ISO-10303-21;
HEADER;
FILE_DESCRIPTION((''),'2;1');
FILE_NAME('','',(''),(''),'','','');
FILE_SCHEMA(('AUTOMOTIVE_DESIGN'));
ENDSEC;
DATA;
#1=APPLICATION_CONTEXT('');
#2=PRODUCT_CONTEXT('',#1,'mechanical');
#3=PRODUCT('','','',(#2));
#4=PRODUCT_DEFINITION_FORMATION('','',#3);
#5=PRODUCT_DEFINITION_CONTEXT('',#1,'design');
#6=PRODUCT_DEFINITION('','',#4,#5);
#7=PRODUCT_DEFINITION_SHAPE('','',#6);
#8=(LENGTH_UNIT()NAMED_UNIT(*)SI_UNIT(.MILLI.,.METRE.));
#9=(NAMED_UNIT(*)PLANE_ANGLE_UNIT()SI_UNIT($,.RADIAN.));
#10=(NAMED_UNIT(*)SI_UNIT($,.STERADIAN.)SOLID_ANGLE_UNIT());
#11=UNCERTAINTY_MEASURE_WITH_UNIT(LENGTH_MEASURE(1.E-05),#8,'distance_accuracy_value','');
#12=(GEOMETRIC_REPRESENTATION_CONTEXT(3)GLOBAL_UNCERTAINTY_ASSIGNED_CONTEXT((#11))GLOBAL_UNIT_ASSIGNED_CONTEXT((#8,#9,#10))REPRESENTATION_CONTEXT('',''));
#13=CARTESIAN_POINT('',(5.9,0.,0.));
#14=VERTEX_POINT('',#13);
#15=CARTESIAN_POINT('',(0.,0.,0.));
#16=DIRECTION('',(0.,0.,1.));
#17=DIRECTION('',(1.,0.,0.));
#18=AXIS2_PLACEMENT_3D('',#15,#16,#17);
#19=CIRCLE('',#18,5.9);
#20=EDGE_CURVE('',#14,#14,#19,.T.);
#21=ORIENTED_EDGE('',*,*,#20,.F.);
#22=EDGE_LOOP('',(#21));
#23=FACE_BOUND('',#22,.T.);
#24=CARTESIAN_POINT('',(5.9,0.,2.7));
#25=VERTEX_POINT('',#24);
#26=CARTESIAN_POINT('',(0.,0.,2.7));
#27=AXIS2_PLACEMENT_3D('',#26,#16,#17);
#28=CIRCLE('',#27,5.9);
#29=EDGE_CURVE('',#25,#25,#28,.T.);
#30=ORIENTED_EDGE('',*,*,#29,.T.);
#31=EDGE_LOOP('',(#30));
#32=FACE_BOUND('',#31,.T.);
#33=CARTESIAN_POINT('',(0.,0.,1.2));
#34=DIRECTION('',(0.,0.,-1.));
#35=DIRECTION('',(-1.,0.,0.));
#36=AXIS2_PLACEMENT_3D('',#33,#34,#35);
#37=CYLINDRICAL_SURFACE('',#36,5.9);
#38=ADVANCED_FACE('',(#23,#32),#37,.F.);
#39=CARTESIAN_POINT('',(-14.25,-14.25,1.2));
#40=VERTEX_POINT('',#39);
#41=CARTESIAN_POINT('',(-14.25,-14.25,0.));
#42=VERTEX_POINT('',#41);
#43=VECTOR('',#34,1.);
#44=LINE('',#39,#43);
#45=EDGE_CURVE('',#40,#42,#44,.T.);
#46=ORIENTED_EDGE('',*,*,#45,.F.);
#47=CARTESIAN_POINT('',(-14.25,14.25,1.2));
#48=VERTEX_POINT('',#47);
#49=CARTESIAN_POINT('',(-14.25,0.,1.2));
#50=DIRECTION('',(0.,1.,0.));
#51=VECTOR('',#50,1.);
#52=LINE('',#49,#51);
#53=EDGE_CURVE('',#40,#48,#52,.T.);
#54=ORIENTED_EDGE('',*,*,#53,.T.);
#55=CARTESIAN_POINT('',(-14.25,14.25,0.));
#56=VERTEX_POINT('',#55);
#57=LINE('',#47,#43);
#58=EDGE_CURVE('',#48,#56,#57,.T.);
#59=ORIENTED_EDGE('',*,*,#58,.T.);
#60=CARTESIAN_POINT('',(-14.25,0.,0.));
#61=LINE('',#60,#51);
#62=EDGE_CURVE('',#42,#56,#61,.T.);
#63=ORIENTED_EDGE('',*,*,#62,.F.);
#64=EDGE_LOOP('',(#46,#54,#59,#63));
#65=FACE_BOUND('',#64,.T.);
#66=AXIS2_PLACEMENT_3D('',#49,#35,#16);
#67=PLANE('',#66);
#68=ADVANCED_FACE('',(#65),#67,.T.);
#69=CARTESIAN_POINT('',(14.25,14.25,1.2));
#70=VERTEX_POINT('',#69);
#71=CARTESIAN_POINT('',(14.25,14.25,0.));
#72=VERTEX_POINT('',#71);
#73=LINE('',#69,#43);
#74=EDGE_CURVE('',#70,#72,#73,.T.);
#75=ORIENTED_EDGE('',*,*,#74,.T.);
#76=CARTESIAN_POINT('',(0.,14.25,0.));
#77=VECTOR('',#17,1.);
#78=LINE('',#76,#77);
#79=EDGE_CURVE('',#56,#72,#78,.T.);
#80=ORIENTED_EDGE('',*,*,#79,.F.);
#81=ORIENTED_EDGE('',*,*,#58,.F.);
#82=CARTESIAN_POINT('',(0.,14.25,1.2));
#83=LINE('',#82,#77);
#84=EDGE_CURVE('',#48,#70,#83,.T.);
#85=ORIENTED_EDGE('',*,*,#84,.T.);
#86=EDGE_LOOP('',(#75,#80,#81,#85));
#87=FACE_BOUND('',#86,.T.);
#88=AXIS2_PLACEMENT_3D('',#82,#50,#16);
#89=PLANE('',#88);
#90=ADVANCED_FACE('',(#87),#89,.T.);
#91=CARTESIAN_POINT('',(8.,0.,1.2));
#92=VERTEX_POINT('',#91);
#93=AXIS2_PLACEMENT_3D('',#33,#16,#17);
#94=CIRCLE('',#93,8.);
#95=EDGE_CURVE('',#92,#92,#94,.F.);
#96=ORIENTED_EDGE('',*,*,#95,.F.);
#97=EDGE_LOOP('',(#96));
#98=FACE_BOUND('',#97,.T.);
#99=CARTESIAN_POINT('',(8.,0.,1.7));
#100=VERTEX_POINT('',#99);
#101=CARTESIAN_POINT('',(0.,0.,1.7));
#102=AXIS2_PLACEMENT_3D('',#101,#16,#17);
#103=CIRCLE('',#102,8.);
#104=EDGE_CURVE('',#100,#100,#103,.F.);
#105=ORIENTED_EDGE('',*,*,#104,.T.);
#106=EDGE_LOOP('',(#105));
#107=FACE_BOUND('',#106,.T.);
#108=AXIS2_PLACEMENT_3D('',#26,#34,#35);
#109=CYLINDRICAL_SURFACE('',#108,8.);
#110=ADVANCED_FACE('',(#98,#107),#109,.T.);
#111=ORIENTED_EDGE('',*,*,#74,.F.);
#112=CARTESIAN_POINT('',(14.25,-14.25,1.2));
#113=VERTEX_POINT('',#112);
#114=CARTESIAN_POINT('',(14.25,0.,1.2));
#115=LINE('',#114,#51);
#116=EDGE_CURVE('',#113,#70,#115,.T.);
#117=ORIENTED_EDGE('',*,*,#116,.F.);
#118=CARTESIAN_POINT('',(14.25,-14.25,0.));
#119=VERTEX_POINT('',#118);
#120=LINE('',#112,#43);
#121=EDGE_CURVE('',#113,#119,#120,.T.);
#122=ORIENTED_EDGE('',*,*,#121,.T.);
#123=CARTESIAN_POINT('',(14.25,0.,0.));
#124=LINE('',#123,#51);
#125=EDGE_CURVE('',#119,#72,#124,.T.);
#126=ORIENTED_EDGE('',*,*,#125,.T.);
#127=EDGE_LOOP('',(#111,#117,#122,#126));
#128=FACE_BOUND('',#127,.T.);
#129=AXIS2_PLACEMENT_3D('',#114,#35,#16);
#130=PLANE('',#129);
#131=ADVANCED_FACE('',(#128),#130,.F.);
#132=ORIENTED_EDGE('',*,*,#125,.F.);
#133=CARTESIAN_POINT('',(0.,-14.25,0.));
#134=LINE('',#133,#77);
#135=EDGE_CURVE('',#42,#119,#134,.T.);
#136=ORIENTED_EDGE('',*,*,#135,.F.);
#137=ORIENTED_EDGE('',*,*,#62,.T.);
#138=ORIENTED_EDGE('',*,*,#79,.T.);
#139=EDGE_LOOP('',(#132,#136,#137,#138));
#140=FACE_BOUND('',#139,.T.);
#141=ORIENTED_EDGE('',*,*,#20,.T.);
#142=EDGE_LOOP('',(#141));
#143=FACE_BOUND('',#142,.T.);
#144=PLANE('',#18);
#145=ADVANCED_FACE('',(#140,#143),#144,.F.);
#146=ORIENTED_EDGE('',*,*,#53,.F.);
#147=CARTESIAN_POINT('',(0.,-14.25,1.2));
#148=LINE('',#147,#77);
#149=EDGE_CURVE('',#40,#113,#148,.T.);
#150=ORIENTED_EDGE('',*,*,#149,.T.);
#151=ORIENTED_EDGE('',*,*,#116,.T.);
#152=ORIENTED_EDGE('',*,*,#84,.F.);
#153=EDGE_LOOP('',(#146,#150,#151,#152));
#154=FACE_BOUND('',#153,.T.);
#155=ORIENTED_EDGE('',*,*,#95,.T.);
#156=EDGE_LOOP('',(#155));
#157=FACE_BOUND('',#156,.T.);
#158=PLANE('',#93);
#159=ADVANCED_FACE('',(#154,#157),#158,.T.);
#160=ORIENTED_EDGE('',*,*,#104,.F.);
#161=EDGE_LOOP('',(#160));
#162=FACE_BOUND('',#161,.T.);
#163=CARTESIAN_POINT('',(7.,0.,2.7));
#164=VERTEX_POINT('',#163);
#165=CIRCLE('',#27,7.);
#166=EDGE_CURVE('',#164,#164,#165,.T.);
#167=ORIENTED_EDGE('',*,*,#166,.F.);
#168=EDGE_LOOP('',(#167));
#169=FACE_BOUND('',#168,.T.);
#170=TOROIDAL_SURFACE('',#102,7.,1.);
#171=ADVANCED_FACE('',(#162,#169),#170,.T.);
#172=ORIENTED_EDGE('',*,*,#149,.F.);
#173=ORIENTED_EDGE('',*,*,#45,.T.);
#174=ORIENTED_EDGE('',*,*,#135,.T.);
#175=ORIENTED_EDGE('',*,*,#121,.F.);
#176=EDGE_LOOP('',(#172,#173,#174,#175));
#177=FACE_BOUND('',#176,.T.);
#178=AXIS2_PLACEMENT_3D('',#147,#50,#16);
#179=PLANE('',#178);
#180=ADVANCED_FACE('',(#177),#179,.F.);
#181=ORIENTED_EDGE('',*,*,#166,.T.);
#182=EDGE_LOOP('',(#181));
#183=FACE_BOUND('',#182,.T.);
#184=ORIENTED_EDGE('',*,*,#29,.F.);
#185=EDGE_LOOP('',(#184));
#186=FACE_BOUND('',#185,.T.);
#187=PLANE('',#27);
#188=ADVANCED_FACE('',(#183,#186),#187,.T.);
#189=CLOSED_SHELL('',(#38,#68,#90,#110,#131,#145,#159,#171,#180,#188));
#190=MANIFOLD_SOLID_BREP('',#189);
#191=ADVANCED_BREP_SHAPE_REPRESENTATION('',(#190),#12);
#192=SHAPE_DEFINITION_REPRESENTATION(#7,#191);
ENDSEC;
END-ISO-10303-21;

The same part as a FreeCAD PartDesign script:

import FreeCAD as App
import Part
import Sketcher
Q = App.Units.Quantity


def edges_at(feature, points):
    """Names of the edges that pass closest to the given points."""
    edges = feature.Shape.Edges
    near = lambda p: min(range(len(edges)), key=lambda i: edges[i].distToShape(Part.Vertex(*p))[0])
    return sorted({f"Edge{near(p) + 1}" for p in points})

doc = App.newDocument("Part")
body = doc.addObject("PartDesign::Body", "Body")

# Sketch on XY plane
sketch1 = doc.addObject("Sketcher::SketchObject", "Sketch")
body.addObject(sketch1)
sketch1.AttachmentSupport = (doc.XY_Plane, [""])
sketch1.MapMode = "FlatFace"
sketch1.addGeometry([
    Part.LineSegment(App.Vector(-14, 14, 0), App.Vector(-14, -14, 0)),  # 0
    Part.LineSegment(App.Vector(-14, -14, 0), App.Vector(14, -14, 0)),  # 1
    Part.LineSegment(App.Vector(14, -14, 0), App.Vector(14, 14, 0)),  # 2
    Part.LineSegment(App.Vector(14, 14, 0), App.Vector(-14, 14, 0)),  # 3
    Part.Circle(App.Vector(0, 0, 0), App.Vector(0, 0, 1), 6),  # 4
], False)
sketch1.addConstraint([
    Sketcher.Constraint("Coincident", 0, 2, 1, 1),
    Sketcher.Constraint("Coincident", 1, 2, 2, 1),
    Sketcher.Constraint("Coincident", 2, 2, 3, 1),
    Sketcher.Constraint("Coincident", 3, 2, 0, 1),
    Sketcher.Constraint("Vertical", 0),
    Sketcher.Constraint("Horizontal", 1),
    Sketcher.Constraint("Vertical", 2),
    Sketcher.Constraint("Horizontal", 3),
    Sketcher.Constraint("Coincident", 4, 3, -1, 1),
    Sketcher.Constraint("Symmetric", 0, 2, 2, 2, -1, 1),
    Sketcher.Constraint("Equal", 3, 0),
    Sketcher.Constraint("Diameter", 4, Q("11.8 mm")),
    Sketcher.Constraint("DistanceX", 1, 1, 1, 2, Q("28.5 mm")),
])
pad1 = doc.addObject("PartDesign::Pad", "Pad")
body.addObject(pad1)
pad1.Profile = sketch1
pad1.Length = 1.2

# Sketch on XY plane
sketch2 = doc.addObject("Sketcher::SketchObject", "Sketch001")
body.addObject(sketch2)
sketch2.AttachmentSupport = (doc.XY_Plane, [""])
sketch2.MapMode = "FlatFace"
sketch2.addGeometry([
    Part.Circle(App.Vector(0, 0, 0), App.Vector(0, 0, 1), 8),
    Part.Circle(App.Vector(0, 0, 0), App.Vector(0, 0, 1), 6),
], False)
sketch2.addConstraint([
    Sketcher.Constraint("Coincident", 0, 3, -1, 1),
    Sketcher.Constraint("Coincident", 1, 3, -1, 1),
    Sketcher.Constraint("Diameter", 0, Q("16 mm")),
    Sketcher.Constraint("Diameter", 1, Q("11.8 mm")),
])
pad2 = doc.addObject("PartDesign::Pad", "Pad001")
body.addObject(pad2)
pad2.Profile = sketch2
pad2.Length = 2.7
doc.recompute()

fillet = doc.addObject("PartDesign::Fillet", "Fillet")
body.addObject(fillet)
fillet.Base = (pad2, edges_at(pad2, [(-8, 0, 2.7)]))
fillet.Radius = 1

doc.recompute()
